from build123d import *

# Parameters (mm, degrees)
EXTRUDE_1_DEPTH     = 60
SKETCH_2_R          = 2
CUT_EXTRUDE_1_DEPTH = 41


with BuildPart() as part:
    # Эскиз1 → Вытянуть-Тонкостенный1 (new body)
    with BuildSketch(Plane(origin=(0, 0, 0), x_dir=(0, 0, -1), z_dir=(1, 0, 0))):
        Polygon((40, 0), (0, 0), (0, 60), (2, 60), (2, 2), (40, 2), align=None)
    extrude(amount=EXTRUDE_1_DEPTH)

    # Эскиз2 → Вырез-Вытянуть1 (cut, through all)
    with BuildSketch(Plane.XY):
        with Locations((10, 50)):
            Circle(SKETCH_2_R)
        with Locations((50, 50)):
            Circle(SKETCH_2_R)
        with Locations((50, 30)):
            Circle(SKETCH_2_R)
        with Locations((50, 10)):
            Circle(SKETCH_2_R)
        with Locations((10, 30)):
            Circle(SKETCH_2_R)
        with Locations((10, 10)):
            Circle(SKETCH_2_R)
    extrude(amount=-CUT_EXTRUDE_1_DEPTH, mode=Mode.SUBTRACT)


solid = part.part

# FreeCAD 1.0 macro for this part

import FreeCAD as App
import Part
import Sketcher

V = App.Vector

doc = App.newDocument("Part")
body = doc.addObject("PartDesign::Body", "Body")

# Sketch on YZ plane
sketch1 = doc.addObject("Sketcher::SketchObject", "Sketch")
body.addObject(sketch1)
sketch1.AttachmentSupport = (doc.YZ_Plane, [""])
sketch1.MapMode = "FlatFace"
sketch1.addGeometry([
    Part.LineSegment(V(0, 0, 0), V(0, -40, 0)),  # 0
    Part.LineSegment(V(0, -40, 0), V(2, -40, 0)),  # 1
    Part.LineSegment(V(2, -40, 0), V(2, -2, 0)),  # 2
    Part.LineSegment(V(2, -2, 0), V(60, -2, 0)),  # 3
    Part.LineSegment(V(60, -2, 0), V(60, 0, 0)),  # 4
    Part.LineSegment(V(60, 0, 0), V(0, 0, 0)),  # 5
], False)
sketch1.addConstraint([
    Sketcher.Constraint("Coincident", 0, 2, 1, 1),
    Sketcher.Constraint("Coincident", 1, 2, 2, 1),
    Sketcher.Constraint("Coincident", 2, 2, 3, 1),
    Sketcher.Constraint("Coincident", 3, 2, 4, 1),
    Sketcher.Constraint("Coincident", 4, 2, 5, 1),
    Sketcher.Constraint("Coincident", 5, 2, 0, 1),
    Sketcher.Constraint("Vertical", 0),
    Sketcher.Constraint("Horizontal", 1),
    Sketcher.Constraint("Vertical", 2),
    Sketcher.Constraint("Horizontal", 3),
    Sketcher.Constraint("Vertical", 4),
    Sketcher.Constraint("Horizontal", 5),
    Sketcher.Constraint("Coincident", 5, 2, -1, 1),
    Sketcher.Constraint("Equal", 1, 4),
    Sketcher.Constraint("DistanceX", 1, 1, 1, 2, 2.0),
    Sketcher.Constraint("DistanceX", 3, 1, 3, 2, 58.0),
    Sketcher.Constraint("DistanceY", 0, 2, 0, 1, 40.0),
])
pad1 = doc.addObject("PartDesign::Pad", "Pad")
body.addObject(pad1)
pad1.Profile = sketch1
pad1.Length = 60

# Sketch on XY plane
sketch2 = doc.addObject("Sketcher::SketchObject", "Sketch001")
body.addObject(sketch2)
sketch2.AttachmentSupport = (doc.XY_Plane, [""])
sketch2.MapMode = "FlatFace"
sketch2.addGeometry([
    Part.Circle(V(10, 50, 0), V(0, 0, 1), 2),  # 0
    Part.Circle(V(50, 50, 0), V(0, 0, 1), 2),  # 1
    Part.Circle(V(50, 30, 0), V(0, 0, 1), 2),  # 2
    Part.Circle(V(50, 10, 0), V(0, 0, 1), 2),  # 3
    Part.Circle(V(10, 30, 0), V(0, 0, 1), 2),  # 4
    Part.Circle(V(10, 10, 0), V(0, 0, 1), 2),  # 5
], False)
sketch2.addConstraint([
    Sketcher.Constraint("Equal", 0, 1),
    Sketcher.Constraint("Equal", 1, 2),
    Sketcher.Constraint("Equal", 2, 3),
    Sketcher.Constraint("Equal", 3, 4),
    Sketcher.Constraint("Equal", 4, 5),
    Sketcher.Constraint("Horizontal", 0, 3, 1, 3),
    Sketcher.Constraint("Horizontal", 2, 3, 4, 3),
    Sketcher.Constraint("Horizontal", 3, 3, 5, 3),
    Sketcher.Constraint("Vertical", 1, 3, 2, 3),
    Sketcher.Constraint("Vertical", 2, 3, 3, 3),
    Sketcher.Constraint("Vertical", 0, 3, 4, 3),
    Sketcher.Constraint("Vertical", 4, 3, 5, 3),
    Sketcher.Constraint("Diameter", 0, 4.0),
    Sketcher.Constraint("DistanceX", -1, 1, 0, 3, 10.0),
    Sketcher.Constraint("DistanceY", -1, 1, 0, 3, 50.0),
    Sketcher.Constraint("DistanceX", -1, 1, 1, 3, 50.0),
    Sketcher.Constraint("DistanceY", -1, 1, 2, 3, 30.0),
    Sketcher.Constraint("DistanceY", -1, 1, 3, 3, 10.0),
])
pocket1 = doc.addObject("PartDesign::Pocket", "Pocket")
body.addObject(pocket1)
pocket1.Profile = sketch2
pocket1.Type = "ThroughAll"

doc.recompute()
